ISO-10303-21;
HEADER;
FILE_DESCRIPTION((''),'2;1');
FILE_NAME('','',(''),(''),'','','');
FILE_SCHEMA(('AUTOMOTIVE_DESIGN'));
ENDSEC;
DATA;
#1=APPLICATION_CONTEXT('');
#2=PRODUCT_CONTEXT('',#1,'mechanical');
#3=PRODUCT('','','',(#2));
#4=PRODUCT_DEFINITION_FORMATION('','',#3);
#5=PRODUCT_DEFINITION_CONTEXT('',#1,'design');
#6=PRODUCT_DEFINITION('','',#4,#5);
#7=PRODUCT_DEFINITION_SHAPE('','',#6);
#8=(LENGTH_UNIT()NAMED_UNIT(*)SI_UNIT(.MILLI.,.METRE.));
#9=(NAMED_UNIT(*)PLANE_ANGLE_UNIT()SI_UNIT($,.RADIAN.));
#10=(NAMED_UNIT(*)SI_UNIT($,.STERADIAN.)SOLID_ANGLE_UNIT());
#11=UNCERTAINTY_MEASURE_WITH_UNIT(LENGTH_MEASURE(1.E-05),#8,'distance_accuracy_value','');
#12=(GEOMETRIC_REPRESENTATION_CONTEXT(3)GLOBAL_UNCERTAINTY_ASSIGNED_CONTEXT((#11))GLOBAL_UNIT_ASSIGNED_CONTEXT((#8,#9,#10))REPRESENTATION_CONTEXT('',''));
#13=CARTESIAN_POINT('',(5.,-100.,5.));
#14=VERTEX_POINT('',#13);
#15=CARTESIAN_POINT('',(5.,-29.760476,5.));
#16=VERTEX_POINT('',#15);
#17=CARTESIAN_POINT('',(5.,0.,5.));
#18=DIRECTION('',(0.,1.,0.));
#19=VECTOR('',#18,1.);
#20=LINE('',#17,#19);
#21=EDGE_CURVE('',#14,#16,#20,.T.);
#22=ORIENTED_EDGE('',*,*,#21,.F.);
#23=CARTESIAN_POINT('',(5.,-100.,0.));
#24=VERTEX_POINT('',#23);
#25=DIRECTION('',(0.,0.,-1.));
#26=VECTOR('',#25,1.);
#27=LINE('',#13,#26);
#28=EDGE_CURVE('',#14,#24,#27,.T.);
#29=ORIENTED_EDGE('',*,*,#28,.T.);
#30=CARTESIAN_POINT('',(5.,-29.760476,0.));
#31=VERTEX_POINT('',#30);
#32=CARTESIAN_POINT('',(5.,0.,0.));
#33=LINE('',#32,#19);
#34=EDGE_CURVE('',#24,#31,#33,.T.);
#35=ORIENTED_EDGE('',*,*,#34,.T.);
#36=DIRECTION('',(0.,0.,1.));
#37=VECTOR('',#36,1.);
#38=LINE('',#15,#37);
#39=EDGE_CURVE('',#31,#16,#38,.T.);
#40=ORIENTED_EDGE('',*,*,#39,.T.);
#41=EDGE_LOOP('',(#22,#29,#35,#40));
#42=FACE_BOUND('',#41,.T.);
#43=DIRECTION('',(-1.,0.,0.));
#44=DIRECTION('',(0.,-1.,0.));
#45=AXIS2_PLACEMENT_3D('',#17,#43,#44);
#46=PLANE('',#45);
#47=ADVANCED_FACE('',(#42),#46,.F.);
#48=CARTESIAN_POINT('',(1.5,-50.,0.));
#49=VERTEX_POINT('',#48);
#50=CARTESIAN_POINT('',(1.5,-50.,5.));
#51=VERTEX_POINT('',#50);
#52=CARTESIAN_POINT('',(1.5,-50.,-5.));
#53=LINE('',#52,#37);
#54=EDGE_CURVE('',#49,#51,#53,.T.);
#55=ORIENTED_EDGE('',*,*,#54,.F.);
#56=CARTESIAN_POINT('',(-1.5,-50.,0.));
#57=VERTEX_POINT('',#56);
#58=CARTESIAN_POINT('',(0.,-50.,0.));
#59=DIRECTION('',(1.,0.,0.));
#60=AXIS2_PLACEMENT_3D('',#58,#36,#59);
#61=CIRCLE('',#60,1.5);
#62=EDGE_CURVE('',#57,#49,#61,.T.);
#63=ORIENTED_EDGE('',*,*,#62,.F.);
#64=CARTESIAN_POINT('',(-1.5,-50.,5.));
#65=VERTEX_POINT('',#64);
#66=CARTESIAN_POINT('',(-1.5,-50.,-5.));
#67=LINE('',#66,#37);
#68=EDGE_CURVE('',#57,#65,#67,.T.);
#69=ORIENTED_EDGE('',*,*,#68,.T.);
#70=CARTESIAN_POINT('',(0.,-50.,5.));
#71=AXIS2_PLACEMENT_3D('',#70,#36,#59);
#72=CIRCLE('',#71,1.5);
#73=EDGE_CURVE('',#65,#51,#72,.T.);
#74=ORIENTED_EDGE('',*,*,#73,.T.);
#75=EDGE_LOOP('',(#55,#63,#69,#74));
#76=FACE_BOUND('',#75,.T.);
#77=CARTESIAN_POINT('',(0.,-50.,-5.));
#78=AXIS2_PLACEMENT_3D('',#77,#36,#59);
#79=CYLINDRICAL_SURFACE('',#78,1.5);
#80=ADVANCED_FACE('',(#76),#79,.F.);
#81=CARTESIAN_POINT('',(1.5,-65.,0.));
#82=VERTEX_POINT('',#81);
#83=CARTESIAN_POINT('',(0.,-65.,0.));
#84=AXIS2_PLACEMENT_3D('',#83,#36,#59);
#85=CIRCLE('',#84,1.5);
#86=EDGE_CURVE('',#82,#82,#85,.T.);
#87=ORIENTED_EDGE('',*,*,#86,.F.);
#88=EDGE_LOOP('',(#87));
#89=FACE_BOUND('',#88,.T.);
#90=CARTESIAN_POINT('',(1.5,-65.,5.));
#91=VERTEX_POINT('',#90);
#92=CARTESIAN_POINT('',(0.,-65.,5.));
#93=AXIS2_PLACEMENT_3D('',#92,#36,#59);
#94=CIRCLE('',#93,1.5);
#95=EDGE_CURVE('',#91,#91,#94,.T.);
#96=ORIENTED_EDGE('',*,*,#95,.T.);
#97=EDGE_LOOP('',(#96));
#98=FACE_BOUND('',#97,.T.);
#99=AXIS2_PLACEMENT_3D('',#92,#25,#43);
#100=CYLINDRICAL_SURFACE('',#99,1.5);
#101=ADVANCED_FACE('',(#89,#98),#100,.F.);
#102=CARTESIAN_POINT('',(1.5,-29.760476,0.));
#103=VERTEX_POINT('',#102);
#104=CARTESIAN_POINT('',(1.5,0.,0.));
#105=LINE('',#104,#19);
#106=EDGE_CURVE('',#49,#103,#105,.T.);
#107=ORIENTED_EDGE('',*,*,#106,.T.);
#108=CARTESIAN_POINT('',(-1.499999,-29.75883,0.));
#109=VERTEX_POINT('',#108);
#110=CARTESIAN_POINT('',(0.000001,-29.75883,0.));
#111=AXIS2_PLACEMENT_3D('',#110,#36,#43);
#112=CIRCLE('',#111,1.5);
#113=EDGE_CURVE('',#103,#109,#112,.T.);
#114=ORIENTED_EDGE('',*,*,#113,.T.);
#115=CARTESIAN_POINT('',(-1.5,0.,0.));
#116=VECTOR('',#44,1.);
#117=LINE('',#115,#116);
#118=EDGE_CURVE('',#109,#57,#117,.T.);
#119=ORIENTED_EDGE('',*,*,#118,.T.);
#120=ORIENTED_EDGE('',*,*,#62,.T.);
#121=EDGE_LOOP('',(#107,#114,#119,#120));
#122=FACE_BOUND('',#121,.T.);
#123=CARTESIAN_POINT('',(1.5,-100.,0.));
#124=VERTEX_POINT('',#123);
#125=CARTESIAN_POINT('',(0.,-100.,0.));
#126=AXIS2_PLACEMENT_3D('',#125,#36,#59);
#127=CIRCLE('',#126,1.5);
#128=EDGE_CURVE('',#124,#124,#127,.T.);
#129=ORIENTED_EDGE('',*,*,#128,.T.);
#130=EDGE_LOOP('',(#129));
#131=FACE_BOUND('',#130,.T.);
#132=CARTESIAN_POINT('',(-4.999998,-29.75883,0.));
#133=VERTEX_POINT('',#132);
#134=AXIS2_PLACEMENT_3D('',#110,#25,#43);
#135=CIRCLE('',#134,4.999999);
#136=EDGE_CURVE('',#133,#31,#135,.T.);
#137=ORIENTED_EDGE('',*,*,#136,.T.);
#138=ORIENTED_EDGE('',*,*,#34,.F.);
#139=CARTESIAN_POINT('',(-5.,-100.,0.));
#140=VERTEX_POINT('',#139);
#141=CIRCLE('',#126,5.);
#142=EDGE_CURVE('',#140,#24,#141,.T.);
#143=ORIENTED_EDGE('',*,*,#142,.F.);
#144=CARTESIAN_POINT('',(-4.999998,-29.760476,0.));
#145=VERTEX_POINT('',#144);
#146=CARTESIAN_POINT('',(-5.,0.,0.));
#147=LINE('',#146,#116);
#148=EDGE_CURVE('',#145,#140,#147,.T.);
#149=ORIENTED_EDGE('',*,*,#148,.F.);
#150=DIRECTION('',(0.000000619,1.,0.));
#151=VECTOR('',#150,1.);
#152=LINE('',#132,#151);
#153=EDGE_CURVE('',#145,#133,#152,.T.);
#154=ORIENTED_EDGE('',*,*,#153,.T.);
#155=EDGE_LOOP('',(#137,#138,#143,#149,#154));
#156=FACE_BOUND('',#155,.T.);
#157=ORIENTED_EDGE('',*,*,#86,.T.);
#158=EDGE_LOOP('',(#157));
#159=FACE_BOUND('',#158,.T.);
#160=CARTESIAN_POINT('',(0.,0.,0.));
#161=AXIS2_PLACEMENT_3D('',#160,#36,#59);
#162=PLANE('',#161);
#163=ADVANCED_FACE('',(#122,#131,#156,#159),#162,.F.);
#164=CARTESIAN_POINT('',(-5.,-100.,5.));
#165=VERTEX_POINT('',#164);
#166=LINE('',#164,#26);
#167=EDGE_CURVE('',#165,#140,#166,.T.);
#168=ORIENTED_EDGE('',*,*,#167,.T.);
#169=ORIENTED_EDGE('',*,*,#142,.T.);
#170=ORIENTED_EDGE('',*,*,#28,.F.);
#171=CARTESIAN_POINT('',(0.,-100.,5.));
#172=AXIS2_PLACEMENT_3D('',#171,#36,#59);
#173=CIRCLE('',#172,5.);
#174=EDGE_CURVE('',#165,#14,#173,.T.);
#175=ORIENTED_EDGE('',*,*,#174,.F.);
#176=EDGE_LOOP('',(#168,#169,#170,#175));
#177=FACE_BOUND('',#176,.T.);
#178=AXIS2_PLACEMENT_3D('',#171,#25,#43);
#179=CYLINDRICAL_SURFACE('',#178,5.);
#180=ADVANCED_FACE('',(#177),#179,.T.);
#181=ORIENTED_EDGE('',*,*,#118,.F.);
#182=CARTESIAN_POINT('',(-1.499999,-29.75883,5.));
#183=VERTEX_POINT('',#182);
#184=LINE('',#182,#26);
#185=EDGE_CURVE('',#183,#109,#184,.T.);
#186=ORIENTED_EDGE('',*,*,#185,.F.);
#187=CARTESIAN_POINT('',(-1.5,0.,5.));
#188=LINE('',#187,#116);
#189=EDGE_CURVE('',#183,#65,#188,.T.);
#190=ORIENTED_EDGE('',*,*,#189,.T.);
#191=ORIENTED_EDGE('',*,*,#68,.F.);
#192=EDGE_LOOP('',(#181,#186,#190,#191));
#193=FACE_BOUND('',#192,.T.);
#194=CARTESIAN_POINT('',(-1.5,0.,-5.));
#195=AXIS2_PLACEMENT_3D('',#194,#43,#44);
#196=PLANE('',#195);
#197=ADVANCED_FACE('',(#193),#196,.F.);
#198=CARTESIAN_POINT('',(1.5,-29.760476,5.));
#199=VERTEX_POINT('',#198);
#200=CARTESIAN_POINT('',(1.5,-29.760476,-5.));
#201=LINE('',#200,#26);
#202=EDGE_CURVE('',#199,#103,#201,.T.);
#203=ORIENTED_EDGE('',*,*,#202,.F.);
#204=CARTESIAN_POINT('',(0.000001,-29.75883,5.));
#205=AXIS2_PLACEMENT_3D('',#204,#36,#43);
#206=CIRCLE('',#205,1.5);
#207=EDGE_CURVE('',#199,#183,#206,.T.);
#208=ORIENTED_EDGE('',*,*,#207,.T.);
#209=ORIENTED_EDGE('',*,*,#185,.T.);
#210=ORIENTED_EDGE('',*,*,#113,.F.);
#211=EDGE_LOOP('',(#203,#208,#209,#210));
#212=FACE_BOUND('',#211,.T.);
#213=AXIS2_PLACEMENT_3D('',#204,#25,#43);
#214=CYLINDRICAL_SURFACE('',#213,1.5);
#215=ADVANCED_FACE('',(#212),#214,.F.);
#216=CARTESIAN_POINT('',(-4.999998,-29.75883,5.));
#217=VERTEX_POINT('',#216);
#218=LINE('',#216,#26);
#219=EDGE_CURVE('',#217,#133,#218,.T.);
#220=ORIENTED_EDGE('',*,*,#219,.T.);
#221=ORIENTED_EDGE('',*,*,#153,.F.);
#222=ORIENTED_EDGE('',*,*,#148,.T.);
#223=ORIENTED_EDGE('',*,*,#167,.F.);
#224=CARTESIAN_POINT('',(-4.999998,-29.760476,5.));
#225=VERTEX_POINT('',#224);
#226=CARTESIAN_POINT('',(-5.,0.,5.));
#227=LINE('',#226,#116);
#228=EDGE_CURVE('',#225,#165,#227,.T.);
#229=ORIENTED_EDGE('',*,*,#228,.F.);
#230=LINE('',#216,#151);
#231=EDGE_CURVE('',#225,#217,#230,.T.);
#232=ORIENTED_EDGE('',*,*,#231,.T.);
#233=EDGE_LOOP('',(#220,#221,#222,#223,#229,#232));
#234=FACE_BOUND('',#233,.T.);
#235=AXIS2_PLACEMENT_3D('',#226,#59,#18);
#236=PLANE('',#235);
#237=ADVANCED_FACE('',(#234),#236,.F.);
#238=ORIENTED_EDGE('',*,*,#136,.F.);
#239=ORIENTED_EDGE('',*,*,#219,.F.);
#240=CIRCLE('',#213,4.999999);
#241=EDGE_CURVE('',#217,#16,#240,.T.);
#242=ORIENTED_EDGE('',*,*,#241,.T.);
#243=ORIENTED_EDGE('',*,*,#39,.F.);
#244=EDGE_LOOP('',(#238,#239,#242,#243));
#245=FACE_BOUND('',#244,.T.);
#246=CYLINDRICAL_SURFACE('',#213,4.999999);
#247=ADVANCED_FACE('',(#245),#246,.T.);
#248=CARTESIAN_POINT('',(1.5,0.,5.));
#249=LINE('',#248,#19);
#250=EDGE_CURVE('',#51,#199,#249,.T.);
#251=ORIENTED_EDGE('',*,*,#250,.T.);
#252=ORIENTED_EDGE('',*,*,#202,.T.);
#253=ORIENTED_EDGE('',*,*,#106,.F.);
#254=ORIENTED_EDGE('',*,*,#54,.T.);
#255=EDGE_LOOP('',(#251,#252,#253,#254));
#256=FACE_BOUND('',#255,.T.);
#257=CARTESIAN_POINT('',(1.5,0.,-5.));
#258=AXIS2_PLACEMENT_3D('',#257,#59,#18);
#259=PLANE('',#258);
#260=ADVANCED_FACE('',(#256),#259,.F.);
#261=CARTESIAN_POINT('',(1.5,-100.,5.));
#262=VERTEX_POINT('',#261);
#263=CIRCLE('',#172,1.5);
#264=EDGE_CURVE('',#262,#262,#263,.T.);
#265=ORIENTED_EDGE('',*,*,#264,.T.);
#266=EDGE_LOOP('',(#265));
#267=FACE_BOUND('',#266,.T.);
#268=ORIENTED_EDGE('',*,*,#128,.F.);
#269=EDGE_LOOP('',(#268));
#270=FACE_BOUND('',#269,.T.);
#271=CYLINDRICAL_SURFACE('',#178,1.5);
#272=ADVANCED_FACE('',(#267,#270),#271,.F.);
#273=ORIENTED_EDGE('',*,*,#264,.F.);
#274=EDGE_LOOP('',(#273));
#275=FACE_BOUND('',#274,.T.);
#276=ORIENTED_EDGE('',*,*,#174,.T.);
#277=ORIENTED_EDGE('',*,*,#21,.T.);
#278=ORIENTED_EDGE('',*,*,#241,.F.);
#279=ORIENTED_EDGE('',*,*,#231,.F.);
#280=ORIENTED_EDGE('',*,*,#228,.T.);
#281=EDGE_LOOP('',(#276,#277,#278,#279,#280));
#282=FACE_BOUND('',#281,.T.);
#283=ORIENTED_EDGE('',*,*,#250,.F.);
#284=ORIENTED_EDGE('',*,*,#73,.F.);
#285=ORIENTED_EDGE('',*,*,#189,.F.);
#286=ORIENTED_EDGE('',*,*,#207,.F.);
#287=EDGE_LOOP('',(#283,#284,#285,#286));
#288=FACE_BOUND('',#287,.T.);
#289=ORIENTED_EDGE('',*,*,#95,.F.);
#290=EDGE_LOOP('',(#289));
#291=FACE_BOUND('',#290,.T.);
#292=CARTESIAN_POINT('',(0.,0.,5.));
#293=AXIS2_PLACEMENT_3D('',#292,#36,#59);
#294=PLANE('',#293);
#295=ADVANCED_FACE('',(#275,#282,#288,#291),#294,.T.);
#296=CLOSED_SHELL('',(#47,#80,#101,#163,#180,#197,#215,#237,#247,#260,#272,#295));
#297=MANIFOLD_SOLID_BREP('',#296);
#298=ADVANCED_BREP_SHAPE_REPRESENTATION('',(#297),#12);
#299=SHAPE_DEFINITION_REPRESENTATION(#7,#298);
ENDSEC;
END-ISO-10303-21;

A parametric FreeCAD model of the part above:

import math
import FreeCAD as App
import Part
import Sketcher

doc = App.newDocument("Part")
body = doc.addObject("PartDesign::Body", "Body")

sketch1 = body.newObject("Sketcher::SketchObject", "Sketch")
sketch1.AttachmentSupport = (doc.getObject("XY_Plane"), [""])
sketch1.MapMode = "FlatFace"
sketch1.addGeometry([
    Part.LineSegment(App.Vector(5, -100, 0), App.Vector(5, 0, 0)),
    Part.ArcOfCircle(Part.Circle(App.Vector(0, 0, 0), App.Vector(0, 0, 1), 5), math.radians(0), math.radians(180)),
    Part.LineSegment(App.Vector(-5, 0, 0), App.Vector(-5, -100, 0)),
    Part.ArcOfCircle(Part.Circle(App.Vector(0, -100, 0), App.Vector(0, 0, 1), 5), math.radians(180), math.radians(360)),
    Part.Circle(App.Vector(0, -100, 0), App.Vector(0, 0, 1), 1.5),
    Part.Circle(App.Vector(0, -65, 0), App.Vector(0, 0, 1), 1.5),
    Part.Circle(App.Vector(0, 0, 0), App.Vector(0, 0, 1), 1.5),
], False)
sketch1.addConstraint([
    Sketcher.Constraint("Tangent", 0, 2, 1, 1),
    Sketcher.Constraint("Tangent", 1, 2, 2, 1),
    Sketcher.Constraint("Tangent", 2, 2, 3, 1),
    Sketcher.Constraint("Tangent", 3, 2, 0, 1),
    Sketcher.Constraint("Vertical", 0),
    Sketcher.Constraint("Vertical", 2),
    Sketcher.Constraint("Coincident", 1, 3, -1, 1),
    Sketcher.Constraint("Coincident", 6, 3, -1, 1),
    Sketcher.Constraint("Coincident", 4, 3, 3, 3),
    Sketcher.Constraint("Equal", 4, 5),
    Sketcher.Constraint("Equal", 5, 6),
    Sketcher.Constraint("PointOnObject", 5, 3, -2),
    Sketcher.Constraint("Diameter", 4, 3.0),
    Sketcher.Constraint("Radius", 1, 5.0),
    Sketcher.Constraint("DistanceY", 0, 1, 0, 2, 100.0),
    Sketcher.Constraint("DistanceY", 5, 3, -1, 1, 65.0),
])
pad1 = body.newObject("PartDesign::Pad", "Pad")
pad1.Profile = sketch1
pad1.Length = 5

sketch2 = body.newObject("Sketcher::SketchObject", "Sketch001")
sketch2.AttachmentSupport = (doc.getObject("XY_Plane"), [""])
sketch2.MapMode = "FlatFace"
sketch2.AttachmentOffset = App.Placement(App.Vector(0, 0, -5), App.Rotation())
sketch2.addGeometry([
    Part.LineSegment(App.Vector(1.5, -50, 0), App.Vector(1.5, 0, 0)),
    Part.ArcOfCircle(Part.Circle(App.Vector(0, 0, 0), App.Vector(0, 0, 1), 1.5), math.radians(0), math.radians(180)),
    Part.LineSegment(App.Vector(-1.5, 0, 0), App.Vector(-1.5, -50, 0)),
    Part.ArcOfCircle(Part.Circle(App.Vector(0, -50, 0), App.Vector(0, 0, 1), 1.5), math.radians(180), math.radians(360)),
], False)
sketch2.addConstraint([
    Sketcher.Constraint("Tangent", 0, 2, 1, 1),
    Sketcher.Constraint("Tangent", 1, 2, 2, 1),
    Sketcher.Constraint("Tangent", 2, 2, 3, 1),
    Sketcher.Constraint("Tangent", 3, 2, 0, 1),
    Sketcher.Constraint("Vertical", 0),
    Sketcher.Constraint("Vertical", 2),
    Sketcher.Constraint("Coincident", 1, 3, -1, 1),
    Sketcher.Constraint("Radius", 1, 1.5),
    Sketcher.Constraint("DistanceY", 0, 1, 0, 2, 50.0),
])
pocket1 = body.newObject("PartDesign::Pocket", "Pocket")
pocket1.Profile = sketch2
pocket1.Length = 10
pocket1.Reversed = True

sketch3 = body.newObject("Sketcher::SketchObject", "Sketch002")
sketch3.AttachmentSupport = (doc.getObject("XY_Plane"), [""])
sketch3.MapMode = "FlatFace"
sketch3.AttachmentOffset = App.Placement(App.Vector(0, 0, 5), App.Rotation())
sketch3.addGeometry([
    Part.LineSegment(App.Vector(-5, 12, 0), App.Vector(-5, -30, 0)),
    Part.LineSegment(App.Vector(-5, -30, 0), App.Vector(17, -30, 0)),
    Part.LineSegment(App.Vector(17, -30, 0), App.Vector(17, 12, 0)),
    Part.LineSegment(App.Vector(17, 12, 0), App.Vector(-5, 12, 0)),
], False)
sketch3.addConstraint([
    Sketcher.Constraint("Coincident", 0, 2, 1, 1),
    Sketcher.Constraint("Coincident", 1, 2, 2, 1),
    Sketcher.Constraint("Coincident", 2, 2, 3, 1),
    Sketcher.Constraint("Coincident", 3, 2, 0, 1),
    Sketcher.Constraint("Vertical", 0),
    Sketcher.Constraint("Horizontal", 1),
    Sketcher.Constraint("Vertical", 2),
    Sketcher.Constraint("Horizontal", 3),
    Sketcher.Constraint("DistanceX", 0, 2, -1, 1, 5.0),
    Sketcher.Constraint("DistanceX", 1, 1, 1, 2, 21.716341),
    Sketcher.Constraint("DistanceY", -1, 1, 2, 2, 12.208599),
    Sketcher.Constraint("DistanceY", 0, 2, 0, 1, 41.969075),
])
pocket2 = body.newObject("PartDesign::Pocket", "Pocket001")
pocket2.Profile = sketch3
pocket2.Length = 10
body2 = doc.addObject("PartDesign::Body", "Body001")

sketch4 = body2.newObject("Sketcher::SketchObject", "Sketch003")
sketch4.AttachmentSupport = (doc.getObject("XY_Plane001"), [""])
sketch4.MapMode = "FlatFace"
sketch4.AttachmentOffset = App.Placement(App.Vector(0, 0, 5), App.Rotation())
sketch4.addGeometry([
    Part.LineSegment(App.Vector(1.5, -29.8, 0), App.Vector(5, -29.8, 0)),
    Part.ArcOfCircle(Part.Circle(App.Vector(0, -29.8, 0), App.Vector(0, 0, 1), 5), math.radians(0), math.radians(180)),
    Part.LineSegment(App.Vector(-5, -29.8, 0), App.Vector(-1.5, -29.8, 0)),
    Part.ArcOfCircle(Part.Circle(App.Vector(0, -29.8, 0), App.Vector(0, 0, 1), 1.5), math.radians(0), math.radians(180)),
], False)
sketch4.addConstraint([
    Sketcher.Constraint("Coincident", 0, 2, 1, 1),
    Sketcher.Constraint("Coincident", 1, 2, 2, 1),
    Sketcher.Constraint("Coincident", 2, 2, 3, 2),
    Sketcher.Constraint("Coincident", 3, 1, 0, 1),
    Sketcher.Constraint("Horizontal", 0),
    Sketcher.Constraint("Horizontal", 2),
    Sketcher.Constraint("Coincident", 3, 3, 1, 3),
    Sketcher.Constraint("PointOnObject", 1, 3, -2),
    Sketcher.Constraint("Horizontal", 3, 3, 1, 2),
    Sketcher.Constraint("Radius", 1, 4.999999),
    Sketcher.Constraint("Radius", 3, 1.5),
    Sketcher.Constraint("DistanceY", 1, 3, -1, 1, 29.75883),
    Sketcher.Constraint("DistanceY", 0, 2, -1, 1, 29.760476),
])
pad2 = body2.newObject("PartDesign::Pad", "Pad001")
pad2.Profile = sketch4
pad2.Length = 5
pad2.Reversed = True
doc.recompute()

boolean = body.newObject("PartDesign::Boolean", "Boolean")
boolean.Type = "Fuse"
boolean.addObjects([body2])

sketch5 = body.newObject("Sketcher::SketchObject", "Sketch004")
sketch5.AttachmentSupport = (doc.getObject("XY_Plane"), [""])
sketch5.MapMode = "FlatFace"
sketch5.addGeometry([
    Part.LineSegment(App.Vector(5, -29.8, 0), App.Vector(5, -32.2, 0)),
    Part.LineSegment(App.Vector(5, -32.2, 0), App.Vector(1.5, -32.2, 0)),
    Part.LineSegment(App.Vector(1.5, -32.2, 0), App.Vector(1.5, -29.8, 0)),
    Part.ArcOfCircle(Part.Circle(App.Vector(0, -29.8, 0), App.Vector(0, 0, 1), 1.5), math.radians(0), math.radians(180)),
    Part.LineSegment(App.Vector(-1.5, -29.8, 0), App.Vector(-1.5, -32.2, 0)),
    Part.LineSegment(App.Vector(-1.5, -32.2, 0), App.Vector(-5, -32.2, 0)),
    Part.LineSegment(App.Vector(-5, -32.2, 0), App.Vector(-5, -29.8, 0)),
    Part.ArcOfCircle(Part.Circle(App.Vector(0, -29.8, 0), App.Vector(0, 0, 1), 5), math.radians(0), math.radians(180)),
], False)
sketch5.addConstraint([
    Sketcher.Constraint("Coincident", 0, 2, 1, 1),
    Sketcher.Constraint("Coincident", 1, 2, 2, 1),
    Sketcher.Constraint("Coincident", 2, 2, 3, 1),
    Sketcher.Constraint("Tangent", 3, 2, 4, 1),
    Sketcher.Constraint("Coincident", 4, 2, 5, 1),
    Sketcher.Constraint("Coincident", 5, 2, 6, 1),
    Sketcher.Constraint("Tangent", 6, 2, 7, 2),
    Sketcher.Constraint("Coincident", 7, 1, 0, 1),
    Sketcher.Constraint("Vertical", 0),
    Sketcher.Constraint("Horizontal", 1),
    Sketcher.Constraint("Vertical", 2),
    Sketcher.Constraint("Vertical", 4),
    Sketcher.Constraint("Horizontal", 5),
    Sketcher.Constraint("Vertical", 6),
    Sketcher.Constraint("Coincident", 7, 3, 3, 3),
    Sketcher.Constraint("Symmetric", 1, 2, 4, 2, -2),
    Sketcher.Constraint("Horizontal", 2, 2, 7, 1),
    Sketcher.Constraint("Radius", 7, 4.999999),
    Sketcher.Constraint("Radius", 3, 1.5),
    Sketcher.Constraint("DistanceY", 4, 2, 4, 1, 2.479128),
    Sketcher.Constraint("DistanceY", 0, 2, 0, 1, 2.477483),
    Sketcher.Constraint("DistanceY", 3, 3, -1, 1, 29.75883),
])
pad3 = body.newObject("PartDesign::Pad", "Pad002")
pad3.Profile = sketch5
pad3.Length = 5

doc.recompute()
